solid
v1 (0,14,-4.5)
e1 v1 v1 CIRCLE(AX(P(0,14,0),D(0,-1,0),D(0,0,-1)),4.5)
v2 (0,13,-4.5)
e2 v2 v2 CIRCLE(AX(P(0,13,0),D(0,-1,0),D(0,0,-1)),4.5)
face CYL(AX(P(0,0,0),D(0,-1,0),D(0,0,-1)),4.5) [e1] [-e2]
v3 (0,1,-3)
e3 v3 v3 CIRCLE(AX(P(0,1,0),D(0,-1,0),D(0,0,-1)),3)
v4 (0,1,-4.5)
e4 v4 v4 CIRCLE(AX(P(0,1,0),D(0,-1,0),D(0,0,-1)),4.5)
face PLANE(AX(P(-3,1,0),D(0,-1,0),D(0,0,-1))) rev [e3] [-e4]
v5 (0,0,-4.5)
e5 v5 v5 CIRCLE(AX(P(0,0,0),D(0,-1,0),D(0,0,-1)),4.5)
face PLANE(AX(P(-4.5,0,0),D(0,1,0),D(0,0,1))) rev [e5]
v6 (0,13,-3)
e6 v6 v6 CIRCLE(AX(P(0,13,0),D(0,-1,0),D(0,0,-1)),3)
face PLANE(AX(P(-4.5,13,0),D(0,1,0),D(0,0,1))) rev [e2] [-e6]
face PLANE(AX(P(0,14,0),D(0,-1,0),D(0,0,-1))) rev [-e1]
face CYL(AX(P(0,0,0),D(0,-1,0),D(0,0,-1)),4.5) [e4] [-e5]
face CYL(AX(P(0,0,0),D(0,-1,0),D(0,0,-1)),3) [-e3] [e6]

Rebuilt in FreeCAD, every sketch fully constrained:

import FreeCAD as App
import Part
import Sketcher
Q = App.Units.Quantity

doc = App.newDocument("Part")
body = doc.addObject("PartDesign::Body", "Body")

# Sketch on XY plane
sketch1 = doc.addObject("Sketcher::SketchObject", "Sketch")
body.addObject(sketch1)
sketch1.AttachmentSupport = (doc.XY_Plane, [""])
sketch1.MapMode = "FlatFace"
sketch1.addGeometry([
    Part.LineSegment(App.Vector(0, 0, 0), App.Vector(0, 14, 0)),  # 0
    Part.LineSegment(App.Vector(0, 14, 0), App.Vector(-4.5, 14, 0)),  # 1
    Part.LineSegment(App.Vector(-4.5, 14, 0), App.Vector(-4.5, 13, 0)),  # 2
    Part.LineSegment(App.Vector(-4.5, 13, 0), App.Vector(-3, 13, 0)),  # 3
    Part.LineSegment(App.Vector(-3, 13, 0), App.Vector(-3, 1, 0)),  # 4
    Part.LineSegment(App.Vector(-3, 1, 0), App.Vector(-4.5, 1, 0)),  # 5
    Part.LineSegment(App.Vector(-4.5, 1, 0), App.Vector(-4.5, 0, 0)),  # 6
    Part.LineSegment(App.Vector(-4.5, 0, 0), App.Vector(0, 0, 0)),  # 7
], False)
sketch1.addConstraint([
    Sketcher.Constraint("Coincident", 0, 2, 1, 1),
    Sketcher.Constraint("Coincident", 1, 2, 2, 1),
    Sketcher.Constraint("Coincident", 2, 2, 3, 1),
    Sketcher.Constraint("Coincident", 3, 2, 4, 1),
    Sketcher.Constraint("Coincident", 4, 2, 5, 1),
    Sketcher.Constraint("Coincident", 5, 2, 6, 1),
    Sketcher.Constraint("Coincident", 6, 2, 7, 1),
    Sketcher.Constraint("Coincident", 7, 2, 0, 1),
    Sketcher.Constraint("Vertical", 0),
    Sketcher.Constraint("Horizontal", 1),
    Sketcher.Constraint("Vertical", 2),
    Sketcher.Constraint("Horizontal", 3),
    Sketcher.Constraint("Vertical", 4),
    Sketcher.Constraint("Horizontal", 5),
    Sketcher.Constraint("Vertical", 6),
    Sketcher.Constraint("Horizontal", 7),
    Sketcher.Constraint("Coincident", 7, 2, -1, 1),
    Sketcher.Constraint("Vertical", 2, 2, 5, 2),
    Sketcher.Constraint("Equal", 2, 6),
    Sketcher.Constraint("DistanceY", 0, 1, 0, 2, Q("14 mm")),
    Sketcher.Constraint("DistanceY", 2, 2, 2, 1, Q("1 mm")),
    Sketcher.Constraint("DistanceX", 1, 2, 1, 1, Q("4.5 mm")),
    Sketcher.Constraint("DistanceX", 3, 1, 3, 2, Q("1.5 mm")),
])
revolution = doc.addObject("PartDesign::Revolution", "Revolution")
body.addObject(revolution)
revolution.Profile = sketch1
revolution.ReferenceAxis = (sketch1, ["V_Axis"])
revolution.Angle = 360

doc.recompute()
